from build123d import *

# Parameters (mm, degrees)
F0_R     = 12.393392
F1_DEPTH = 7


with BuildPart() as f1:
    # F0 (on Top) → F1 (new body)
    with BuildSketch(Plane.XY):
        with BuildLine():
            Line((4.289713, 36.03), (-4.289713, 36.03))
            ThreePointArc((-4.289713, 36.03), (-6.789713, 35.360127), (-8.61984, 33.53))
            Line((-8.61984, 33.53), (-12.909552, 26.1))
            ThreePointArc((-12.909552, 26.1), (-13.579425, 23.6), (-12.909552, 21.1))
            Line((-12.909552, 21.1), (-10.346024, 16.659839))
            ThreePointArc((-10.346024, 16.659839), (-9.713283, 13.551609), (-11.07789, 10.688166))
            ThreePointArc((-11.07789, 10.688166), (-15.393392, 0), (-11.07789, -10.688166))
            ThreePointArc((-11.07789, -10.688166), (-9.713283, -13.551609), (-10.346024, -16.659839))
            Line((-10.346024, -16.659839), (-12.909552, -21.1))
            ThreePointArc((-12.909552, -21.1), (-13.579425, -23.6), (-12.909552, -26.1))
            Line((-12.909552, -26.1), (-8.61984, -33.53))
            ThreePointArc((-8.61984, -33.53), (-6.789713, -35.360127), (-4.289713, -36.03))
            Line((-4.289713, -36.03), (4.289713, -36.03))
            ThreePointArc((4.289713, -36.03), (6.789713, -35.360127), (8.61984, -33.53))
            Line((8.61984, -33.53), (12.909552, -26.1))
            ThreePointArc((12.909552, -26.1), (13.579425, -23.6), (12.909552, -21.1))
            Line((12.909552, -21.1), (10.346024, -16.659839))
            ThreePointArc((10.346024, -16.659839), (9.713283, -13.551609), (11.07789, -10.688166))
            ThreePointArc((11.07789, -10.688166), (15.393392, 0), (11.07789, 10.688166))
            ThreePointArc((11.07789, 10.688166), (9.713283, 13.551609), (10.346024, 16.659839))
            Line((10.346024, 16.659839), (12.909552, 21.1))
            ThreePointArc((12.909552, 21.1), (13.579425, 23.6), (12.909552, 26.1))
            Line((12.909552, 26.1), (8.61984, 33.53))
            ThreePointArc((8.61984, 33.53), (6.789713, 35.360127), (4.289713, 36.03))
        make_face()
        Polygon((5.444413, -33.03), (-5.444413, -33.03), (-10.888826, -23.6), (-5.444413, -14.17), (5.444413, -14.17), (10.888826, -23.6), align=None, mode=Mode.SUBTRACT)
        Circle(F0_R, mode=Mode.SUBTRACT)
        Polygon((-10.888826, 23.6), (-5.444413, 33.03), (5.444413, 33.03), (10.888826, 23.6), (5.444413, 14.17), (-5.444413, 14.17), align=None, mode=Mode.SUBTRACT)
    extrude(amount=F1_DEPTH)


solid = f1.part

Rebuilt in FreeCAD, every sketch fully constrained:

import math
import FreeCAD as App
import Part
import Sketcher
Q = App.Units.Quantity


def add_polygon(sketch, points):
    """Adds a closed chain of lines whose ends are joined by coincident constraints."""
    first, n = sketch.GeometryCount, len(points)
    for a, b in zip(points, points[1:] + points[:1]):
        sketch.addGeometry(Part.LineSegment(App.Vector(*a, 0), App.Vector(*b, 0)), False)
    for i in range(n):
        sketch.addConstraint(Sketcher.Constraint("Coincident", first + i, 2, first + (i + 1) % n, 1))

doc = App.newDocument("Part")
body = doc.addObject("PartDesign::Body", "Body")

# Sketch on XY plane
sketch1 = body.newObject("Sketcher::SketchObject", "Sketch")
sketch1.AttachmentSupport = (doc.getObject("XY_Plane"), [""])
sketch1.MapMode = "FlatFace"
sketch1.addGeometry(Part.LineSegment(App.Vector(4.3, 36, 0), App.Vector(-4.3, 36, 0)), False)  # 0
sketch1.addGeometry(Part.ArcOfCircle(Part.Circle(App.Vector(-4.3, 31, 0), App.Vector(0, 0, 1), 5), math.radians(90), math.radians(150)), False)  # 1
sketch1.addGeometry(Part.LineSegment(App.Vector(-8.6, 33.5, 0), App.Vector(-12.9, 26.1, 0)), False)  # 2
sketch1.addGeometry(Part.ArcOfCircle(Part.Circle(App.Vector(-8.6, 23.6, 0), App.Vector(0, 0, 1), 5), math.radians(150), math.radians(210)), False)  # 3
sketch1.addGeometry(Part.LineSegment(App.Vector(-12.9, 21.1, 0), App.Vector(-10.3, 16.7, 0)), False)  # 4
sketch1.addGeometry(Part.ArcOfCircle(Part.Circle(App.Vector(-14.7, 14.2, 0), App.Vector(0, 0, 1), 5), math.radians(-44), math.radians(30)), False)  # 5
sketch1.addGeometry(Part.ArcOfCircle(Part.Circle(App.Vector(0, 0, 0), App.Vector(0, 0, 1), 15.4), math.radians(136), math.radians(224)), False)  # 6
sketch1.addGeometry(Part.ArcOfCircle(Part.Circle(App.Vector(-14.7, -14.2, 0), App.Vector(0, 0, 1), 5), math.radians(-30), math.radians(44)), False)  # 7
sketch1.addGeometry(Part.LineSegment(App.Vector(-10.3, -16.7, 0), App.Vector(-12.9, -21.1, 0)), False)  # 8
sketch1.addGeometry(Part.ArcOfCircle(Part.Circle(App.Vector(-8.6, -23.6, 0), App.Vector(0, 0, 1), 5), math.radians(150), math.radians(210)), False)  # 9
sketch1.addGeometry(Part.LineSegment(App.Vector(-12.9, -26.1, 0), App.Vector(-8.6, -33.5, 0)), False)  # 10
sketch1.addGeometry(Part.ArcOfCircle(Part.Circle(App.Vector(-4.3, -31, 0), App.Vector(0, 0, 1), 5), math.radians(-150), math.radians(-90)), False)  # 11
sketch1.addGeometry(Part.LineSegment(App.Vector(-4.3, -36, 0), App.Vector(4.3, -36, 0)), False)  # 12
sketch1.addGeometry(Part.ArcOfCircle(Part.Circle(App.Vector(4.3, -31, 0), App.Vector(0, 0, 1), 5), math.radians(-90), math.radians(-30)), False)  # 13
sketch1.addGeometry(Part.LineSegment(App.Vector(8.6, -33.5, 0), App.Vector(12.9, -26.1, 0)), False)  # 14
sketch1.addGeometry(Part.ArcOfCircle(Part.Circle(App.Vector(8.6, -23.6, 0), App.Vector(0, 0, 1), 5), math.radians(-30), math.radians(30)), False)  # 15
sketch1.addGeometry(Part.LineSegment(App.Vector(12.9, -21.1, 0), App.Vector(10.3, -16.7, 0)), False)  # 16
sketch1.addGeometry(Part.ArcOfCircle(Part.Circle(App.Vector(14.7, -14.2, 0), App.Vector(0, 0, 1), 5), math.radians(136), math.radians(210)), False)  # 17
sketch1.addGeometry(Part.ArcOfCircle(Part.Circle(App.Vector(0, 0, 0), App.Vector(0, 0, 1), 15.4), math.radians(-44), math.radians(44)), False)  # 18
sketch1.addGeometry(Part.ArcOfCircle(Part.Circle(App.Vector(14.7, 14.2, 0), App.Vector(0, 0, 1), 5), math.radians(150), math.radians(224)), False)  # 19
sketch1.addGeometry(Part.LineSegment(App.Vector(10.3, 16.7, 0), App.Vector(12.9, 21.1, 0)), False)  # 20
sketch1.addGeometry(Part.ArcOfCircle(Part.Circle(App.Vector(8.6, 23.6, 0), App.Vector(0, 0, 1), 5), math.radians(-30), math.radians(30)), False)  # 21
sketch1.addGeometry(Part.LineSegment(App.Vector(12.9, 26.1, 0), App.Vector(8.6, 33.5, 0)), False)  # 22
sketch1.addGeometry(Part.ArcOfCircle(Part.Circle(App.Vector(4.3, 31, 0), App.Vector(0, 0, 1), 5), math.radians(30), math.radians(90)), False)  # 23
add_polygon(sketch1, [(10.9, -23.6), (5.4, -33), (-5.4, -33), (-10.9, -23.6), (-5.4, -14.2), (5.4, -14.2)])  # lines 24-29
sketch1.addGeometry(Part.Circle(App.Vector(0, 0, 0), App.Vector(0, 0, 1), 12.4), False)  # 30
add_polygon(sketch1, [(-5.4, 14.2), (-10.9, 23.6), (-5.4, 33), (5.4, 33), (10.9, 23.6), (5.4, 14.2)])  # lines 31-36
sketch1.addConstraint([
    Sketcher.Constraint("Tangent", 0, 2, 1, 1),
    Sketcher.Constraint("Tangent", 1, 2, 2, 1),
    Sketcher.Constraint("Tangent", 2, 2, 3, 1),
    Sketcher.Constraint("Tangent", 3, 2, 4, 1),
    Sketcher.Constraint("Tangent", 4, 2, 5, 2),
    Sketcher.Constraint("Tangent", 5, 1, 6, 1),
    Sketcher.Constraint("Tangent", 6, 2, 7, 2),
    Sketcher.Constraint("Tangent", 7, 1, 8, 1),
    Sketcher.Constraint("Tangent", 8, 2, 9, 1),
    Sketcher.Constraint("Tangent", 9, 2, 10, 1),
    Sketcher.Constraint("Tangent", 10, 2, 11, 1),
    Sketcher.Constraint("Tangent", 11, 2, 12, 1),
    Sketcher.Constraint("Tangent", 12, 2, 13, 1),
    Sketcher.Constraint("Tangent", 13, 2, 14, 1),
    Sketcher.Constraint("Tangent", 14, 2, 15, 1),
    Sketcher.Constraint("Tangent", 15, 2, 16, 1),
    Sketcher.Constraint("Tangent", 16, 2, 17, 2),
    Sketcher.Constraint("Tangent", 17, 1, 18, 1),
    Sketcher.Constraint("Tangent", 18, 2, 19, 2),
    Sketcher.Constraint("Tangent", 19, 1, 20, 1),
    Sketcher.Constraint("Tangent", 20, 2, 21, 1),
    Sketcher.Constraint("Tangent", 21, 2, 22, 1),
    Sketcher.Constraint("Tangent", 22, 2, 23, 1),
    Sketcher.Constraint("Tangent", 23, 2, 0, 1),
    Sketcher.Constraint("Horizontal", 0),
    Sketcher.Constraint("Horizontal", 12),
    Sketcher.Constraint("Horizontal", 25),
    Sketcher.Constraint("Horizontal", 28),
    Sketcher.Constraint("Horizontal", 33),
    Sketcher.Constraint("Horizontal", 36),
    Sketcher.Constraint("Coincident", 6, 3, -1, 1),
    Sketcher.Constraint("Coincident", 18, 3, -1, 1),
    Sketcher.Constraint("Coincident", 30, 3, -1, 1),
    Sketcher.Constraint("Equal", 1, 3),
    Sketcher.Constraint("Equal", 5, 7),
    Sketcher.Constraint("Equal", 3, 9),
    Sketcher.Constraint("Equal", 9, 11),
    Sketcher.Constraint("Equal", 11, 13),
    Sketcher.Constraint("Equal", 13, 15),
    Sketcher.Constraint("Equal", 7, 17),
    Sketcher.Constraint("Equal", 6, 18),
    Sketcher.Constraint("Equal", 17, 19),
    Sketcher.Constraint("Equal", 15, 21),
    Sketcher.Constraint("Equal", 21, 23),
    Sketcher.Constraint("Symmetric", 1, 3, 13, 3, -1, 1),
    Sketcher.Constraint("Symmetric", 3, 3, 15, 3, -1, 1),
    Sketcher.Constraint("Symmetric", 9, 3, 21, 3, -1, 1),
    Sketcher.Constraint("Symmetric", 29, 2, 31, 2, -1, 1),
    Sketcher.Constraint("Symmetric", 24, 2, 32, 2, -1, 1),
    Sketcher.Constraint("Symmetric", 26, 2, 34, 2, -1, 1),
    Sketcher.Constraint("Symmetric", 27, 2, 35, 2, -1, 1),
    Sketcher.Constraint("Symmetric", 9, 3, 15, 3, -2),
    Sketcher.Constraint("Symmetric", 26, 2, 29, 2, -2),
    Sketcher.Constraint("Parallel", 2, 8),
    Sketcher.Constraint("Parallel", 4, 10),
    Sketcher.Constraint("Parallel", 10, 16),
    Sketcher.Constraint("Parallel", 14, 20),
    Sketcher.Constraint("Parallel", 16, 22),
    Sketcher.Constraint("Parallel", 20, 24),
    Sketcher.Constraint("Parallel", 22, 26),
    Sketcher.Constraint("Parallel", 24, 27),
    Sketcher.Constraint("Parallel", 26, 29),
    Sketcher.Constraint("Parallel", 29, 31),
    Sketcher.Constraint("Parallel", 31, 34),
    Sketcher.Constraint("Horizontal", 7, 3, 17, 3),
    Sketcher.Constraint("Horizontal", 15, 3, 26, 2),
    Sketcher.Constraint("Vertical", 25, 2, 27, 2),
    Sketcher.Constraint("Radius", 1, 5.0),
    Sketcher.Constraint("Angle", 2, Q("-119.999997 deg")),
    Sketcher.Constraint("DistanceY", 24, 2, 13, 3, 2.0),
    Sketcher.Constraint("DistanceY", -1, 1, 3, 3, 23.6),
    Sketcher.Constraint("DistanceY", 5, 3, 4, 2, 2.5),
    Sketcher.Constraint("DistanceY", -1, 1, 1, 3, 31.03),
    Sketcher.Constraint("Diameter", 30, 24.786784),
    Sketcher.Constraint("Radius", 6, 15.393395),
    Sketcher.Constraint("DistanceX", 4, 2, 3, 3, 1.766599),
    Sketcher.Constraint("DistanceX", 13, 3, 24, 2, 1.1547),
])
pad1 = body.newObject("PartDesign::Pad", "Pad")
pad1.Profile = sketch1
pad1.Length = 7

doc.recompute()
